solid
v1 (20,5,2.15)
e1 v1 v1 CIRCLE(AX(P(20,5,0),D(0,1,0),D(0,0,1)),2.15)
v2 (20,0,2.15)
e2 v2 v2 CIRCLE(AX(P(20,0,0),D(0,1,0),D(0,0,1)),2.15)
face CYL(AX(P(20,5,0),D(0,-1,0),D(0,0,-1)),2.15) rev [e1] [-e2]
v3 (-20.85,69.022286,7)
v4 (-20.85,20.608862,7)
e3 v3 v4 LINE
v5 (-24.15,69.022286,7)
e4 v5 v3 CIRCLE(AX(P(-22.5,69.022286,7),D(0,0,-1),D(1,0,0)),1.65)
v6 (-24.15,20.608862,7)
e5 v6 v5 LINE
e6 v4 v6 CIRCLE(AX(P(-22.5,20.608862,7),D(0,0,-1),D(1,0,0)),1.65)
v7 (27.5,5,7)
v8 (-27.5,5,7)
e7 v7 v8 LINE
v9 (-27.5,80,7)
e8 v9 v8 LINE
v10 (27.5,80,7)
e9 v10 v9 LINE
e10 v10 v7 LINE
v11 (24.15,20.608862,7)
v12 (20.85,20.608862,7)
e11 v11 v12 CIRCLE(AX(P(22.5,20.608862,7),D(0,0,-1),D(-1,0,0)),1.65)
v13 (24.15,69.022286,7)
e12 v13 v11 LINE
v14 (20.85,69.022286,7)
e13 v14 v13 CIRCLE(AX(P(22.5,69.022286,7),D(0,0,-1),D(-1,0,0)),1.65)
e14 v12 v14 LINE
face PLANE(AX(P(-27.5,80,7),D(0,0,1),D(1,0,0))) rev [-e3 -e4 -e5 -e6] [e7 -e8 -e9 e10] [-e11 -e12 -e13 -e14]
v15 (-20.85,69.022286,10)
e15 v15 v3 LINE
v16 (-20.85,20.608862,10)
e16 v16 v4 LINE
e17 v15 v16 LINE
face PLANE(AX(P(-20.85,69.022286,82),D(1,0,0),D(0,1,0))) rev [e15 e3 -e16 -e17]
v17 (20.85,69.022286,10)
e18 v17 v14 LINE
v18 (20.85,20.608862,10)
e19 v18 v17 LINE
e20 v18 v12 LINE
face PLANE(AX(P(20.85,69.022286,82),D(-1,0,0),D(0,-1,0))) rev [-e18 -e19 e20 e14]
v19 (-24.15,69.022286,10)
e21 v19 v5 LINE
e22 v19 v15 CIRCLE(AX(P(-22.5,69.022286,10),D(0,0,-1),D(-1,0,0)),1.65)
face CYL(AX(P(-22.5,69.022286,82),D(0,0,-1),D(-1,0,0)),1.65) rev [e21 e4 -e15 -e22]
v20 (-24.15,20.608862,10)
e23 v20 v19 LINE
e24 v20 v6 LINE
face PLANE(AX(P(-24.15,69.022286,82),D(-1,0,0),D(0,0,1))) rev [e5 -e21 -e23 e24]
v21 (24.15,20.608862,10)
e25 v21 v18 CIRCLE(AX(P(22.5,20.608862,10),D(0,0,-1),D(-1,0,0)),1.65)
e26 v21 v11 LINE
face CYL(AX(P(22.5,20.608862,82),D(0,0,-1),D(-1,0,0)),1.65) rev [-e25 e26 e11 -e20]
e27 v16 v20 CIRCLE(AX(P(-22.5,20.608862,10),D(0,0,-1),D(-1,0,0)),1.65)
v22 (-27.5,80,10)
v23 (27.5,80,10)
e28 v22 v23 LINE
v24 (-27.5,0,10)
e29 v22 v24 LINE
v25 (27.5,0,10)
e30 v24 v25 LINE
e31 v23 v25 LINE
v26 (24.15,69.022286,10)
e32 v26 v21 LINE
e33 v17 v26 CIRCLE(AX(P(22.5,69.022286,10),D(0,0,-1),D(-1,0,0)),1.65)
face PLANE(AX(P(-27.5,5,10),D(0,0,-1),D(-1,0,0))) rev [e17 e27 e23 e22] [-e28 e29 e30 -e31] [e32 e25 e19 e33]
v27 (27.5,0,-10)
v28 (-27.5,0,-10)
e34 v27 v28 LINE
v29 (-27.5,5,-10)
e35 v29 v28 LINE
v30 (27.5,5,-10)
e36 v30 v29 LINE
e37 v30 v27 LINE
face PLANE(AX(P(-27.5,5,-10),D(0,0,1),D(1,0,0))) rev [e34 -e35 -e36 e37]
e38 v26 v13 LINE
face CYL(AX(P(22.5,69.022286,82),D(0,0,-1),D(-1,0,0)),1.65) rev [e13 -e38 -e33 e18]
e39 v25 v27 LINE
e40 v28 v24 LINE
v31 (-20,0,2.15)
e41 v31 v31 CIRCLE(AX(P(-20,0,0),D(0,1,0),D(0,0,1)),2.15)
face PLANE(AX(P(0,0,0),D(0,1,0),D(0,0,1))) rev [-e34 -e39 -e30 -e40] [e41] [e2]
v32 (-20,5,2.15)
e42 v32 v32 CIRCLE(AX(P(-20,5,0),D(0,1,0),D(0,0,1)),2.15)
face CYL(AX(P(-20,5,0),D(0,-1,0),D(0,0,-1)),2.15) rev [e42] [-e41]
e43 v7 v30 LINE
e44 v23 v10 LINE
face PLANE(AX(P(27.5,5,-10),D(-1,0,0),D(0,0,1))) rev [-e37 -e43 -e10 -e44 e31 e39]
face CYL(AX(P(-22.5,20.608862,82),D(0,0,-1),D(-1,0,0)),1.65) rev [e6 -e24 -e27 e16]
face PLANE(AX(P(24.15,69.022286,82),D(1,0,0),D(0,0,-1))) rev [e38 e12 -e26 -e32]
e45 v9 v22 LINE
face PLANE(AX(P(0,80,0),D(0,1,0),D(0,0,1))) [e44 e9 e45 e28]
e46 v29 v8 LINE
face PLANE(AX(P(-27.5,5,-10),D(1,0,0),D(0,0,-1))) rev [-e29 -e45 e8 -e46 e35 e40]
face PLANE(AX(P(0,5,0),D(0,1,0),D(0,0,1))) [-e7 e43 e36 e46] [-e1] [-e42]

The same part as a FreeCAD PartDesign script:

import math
import FreeCAD as App
import Part
import Sketcher

V = App.Vector
Q = App.Units.Quantity


def add_polygon(sketch, points):
    """Adds a closed chain of lines whose ends are joined by coincident constraints."""
    first, n = sketch.GeometryCount, len(points)
    for a, b in zip(points, points[1:] + points[:1]):
        sketch.addGeometry(Part.LineSegment(App.Vector(*a, 0), App.Vector(*b, 0)), False)
    for i in range(n):
        sketch.addConstraint(Sketcher.Constraint("Coincident", first + i, 2, first + (i + 1) % n, 1))

doc = App.newDocument("Part")
body = doc.addObject("PartDesign::Body", "Body")

# Sketch on XZ plane
sketch1 = body.newObject("Sketcher::SketchObject", "Sketch")
sketch1.AttachmentSupport = (doc.getObject("XZ_Plane"), [""])
sketch1.MapMode = "FlatFace"
add_polygon(sketch1, [(-27.5, -10), (-27.5, 10), (27.5, 10), (27.5, -10)])  # lines 0-3
sketch1.addGeometry(Part.Circle(V(-20, 0, 0), V(0, 0, 1), 2.15), False)  # 4
sketch1.addGeometry(Part.Circle(V(20, 0, 0), V(0, 0, 1), 2.15), False)  # 5
sketch1.addConstraint(Sketcher.Constraint("Vertical", 0))
sketch1.addConstraint(Sketcher.Constraint("Horizontal", 1))
sketch1.addConstraint(Sketcher.Constraint("Vertical", 2))
sketch1.addConstraint(Sketcher.Constraint("Horizontal", 3))
sketch1.addConstraint(Sketcher.Constraint("Equal", 4, 5))
sketch1.addConstraint(Sketcher.Constraint("Symmetric", 4, 3, 5, 3, -1, 1))
sketch1.addConstraint(Sketcher.Constraint("Symmetric", 0, 2, 2, 2, -1, 1))
sketch1.addConstraint(Sketcher.Constraint("PointOnObject", 4, 3, -1))
sketch1.addConstraint(Sketcher.Constraint("Diameter", 4, Q("4.3 mm")))
sketch1.addConstraint(Sketcher.Constraint("DistanceX", 1, 1, 1, 2, Q("55 mm")))
sketch1.addConstraint(Sketcher.Constraint("DistanceY", 0, 1, 0, 2, Q("20 mm")))
sketch1.addConstraint(Sketcher.Constraint("DistanceX", 4, 3, -1, 1, Q("20 mm")))
pad1 = body.newObject("PartDesign::Pad", "Pad")
pad1.Profile = sketch1
pad1.Length = 5
pad1.Reversed = True

# Sketch on XZ plane
sketch2 = body.newObject("Sketcher::SketchObject", "Sketch001")
sketch2.AttachmentSupport = (doc.getObject("XZ_Plane"), [""])
sketch2.MapMode = "FlatFace"
sketch2.AttachmentOffset = App.Placement(V(0, 0, -5), App.Rotation())
add_polygon(sketch2, [(-27.5, 7), (-27.5, 10), (27.5, 10), (27.5, 7)])  # lines 0-3
sketch2.addConstraint(Sketcher.Constraint("Vertical", 0))
sketch2.addConstraint(Sketcher.Constraint("Horizontal", 1))
sketch2.addConstraint(Sketcher.Constraint("Vertical", 2))
sketch2.addConstraint(Sketcher.Constraint("Horizontal", 3))
sketch2.addConstraint(Sketcher.Constraint("DistanceX", 1, 1, 1, 2, Q("55 mm")))
sketch2.addConstraint(Sketcher.Constraint("DistanceY", 0, 1, 0, 2, Q("3 mm")))
sketch2.addConstraint(Sketcher.Constraint("DistanceY", -1, 1, 0, 2, Q("10 mm")))
sketch2.addConstraint(Sketcher.Constraint("DistanceX", 0, 2, -1, 1, Q("27.5 mm")))
pad2 = body.newObject("PartDesign::Pad", "Pad001")
pad2.Profile = sketch2
pad2.Length = 75
pad2.Reversed = True

# Sketch on XY plane
sketch3 = body.newObject("Sketcher::SketchObject", "Sketch002")
sketch3.AttachmentSupport = (doc.getObject("XY_Plane"), [""])
sketch3.MapMode = "FlatFace"
sketch3.AttachmentOffset = App.Placement(V(0, 0, 7), App.Rotation())
sketch3.addGeometry(Part.LineSegment(V(20.85, 20.608862, 0), V(20.85, 69.022286, 0)), False)
sketch3.addGeometry(Part.ArcOfCircle(Part.Circle(V(22.5, 69.022286, 0), V(0, 0, 1), 1.65), math.radians(0), math.radians(180)), False)
sketch3.addGeometry(Part.LineSegment(V(24.15, 69.022286, 0), V(24.15, 20.608862, 0)), False)
sketch3.addGeometry(Part.ArcOfCircle(Part.Circle(V(22.5, 20.608862, 0), V(0, 0, 1), 1.65), math.radians(180), math.radians(360)), False)
sketch3.addGeometry(Part.LineSegment(V(-20.85, 69.022286, 0), V(-20.85, 20.608862, 0)), False)
sketch3.addGeometry(Part.ArcOfCircle(Part.Circle(V(-22.5, 20.608862, 0), V(0, 0, 1), 1.65), math.radians(180), math.radians(360)), False)
sketch3.addGeometry(Part.LineSegment(V(-24.15, 20.608862, 0), V(-24.15, 69.022286, 0)), False)
sketch3.addGeometry(Part.ArcOfCircle(Part.Circle(V(-22.5, 69.022286, 0), V(0, 0, 1), 1.65), math.radians(0), math.radians(180)), False)
sketch3.addConstraint(Sketcher.Constraint("Tangent", 0, 2, 1, 2))
sketch3.addConstraint(Sketcher.Constraint("Tangent", 1, 1, 2, 1))
sketch3.addConstraint(Sketcher.Constraint("Tangent", 2, 2, 3, 2))
sketch3.addConstraint(Sketcher.Constraint("Tangent", 3, 1, 0, 1))
sketch3.addConstraint(Sketcher.Constraint("Tangent", 4, 2, 5, 2))
sketch3.addConstraint(Sketcher.Constraint("Tangent", 5, 1, 6, 1))
sketch3.addConstraint(Sketcher.Constraint("Tangent", 6, 2, 7, 2))
sketch3.addConstraint(Sketcher.Constraint("Tangent", 7, 1, 4, 1))
sketch3.addConstraint(Sketcher.Constraint("Vertical", 0))
sketch3.addConstraint(Sketcher.Constraint("Vertical", 2))
sketch3.addConstraint(Sketcher.Constraint("Vertical", 4))
sketch3.addConstraint(Sketcher.Constraint("Vertical", 6))
sketch3.addConstraint(Sketcher.Constraint("Equal", 3, 5))
sketch3.addConstraint(Sketcher.Constraint("Symmetric", 3, 3, 5, 3, -2))
sketch3.addConstraint(Sketcher.Constraint("Horizontal", 1, 3, 7, 3))
sketch3.addConstraint(Sketcher.Constraint("Radius", 1, Q("1.65 mm")))
sketch3.addConstraint(Sketcher.Constraint("DistanceX", 5, 3, 3, 3, Q("45 mm")))
sketch3.addConstraint(Sketcher.Constraint("DistanceY", 0, 1, 0, 2, Q("48.413424 mm")))
sketch3.addConstraint(Sketcher.Constraint("DistanceY", -1, 1, 1, 3, Q("69.022286 mm")))
pocket1 = body.newObject("PartDesign::Pocket", "Pocket")
pocket1.Profile = sketch3
pocket1.Length = 75
pocket1.Reversed = True

doc.recompute()
